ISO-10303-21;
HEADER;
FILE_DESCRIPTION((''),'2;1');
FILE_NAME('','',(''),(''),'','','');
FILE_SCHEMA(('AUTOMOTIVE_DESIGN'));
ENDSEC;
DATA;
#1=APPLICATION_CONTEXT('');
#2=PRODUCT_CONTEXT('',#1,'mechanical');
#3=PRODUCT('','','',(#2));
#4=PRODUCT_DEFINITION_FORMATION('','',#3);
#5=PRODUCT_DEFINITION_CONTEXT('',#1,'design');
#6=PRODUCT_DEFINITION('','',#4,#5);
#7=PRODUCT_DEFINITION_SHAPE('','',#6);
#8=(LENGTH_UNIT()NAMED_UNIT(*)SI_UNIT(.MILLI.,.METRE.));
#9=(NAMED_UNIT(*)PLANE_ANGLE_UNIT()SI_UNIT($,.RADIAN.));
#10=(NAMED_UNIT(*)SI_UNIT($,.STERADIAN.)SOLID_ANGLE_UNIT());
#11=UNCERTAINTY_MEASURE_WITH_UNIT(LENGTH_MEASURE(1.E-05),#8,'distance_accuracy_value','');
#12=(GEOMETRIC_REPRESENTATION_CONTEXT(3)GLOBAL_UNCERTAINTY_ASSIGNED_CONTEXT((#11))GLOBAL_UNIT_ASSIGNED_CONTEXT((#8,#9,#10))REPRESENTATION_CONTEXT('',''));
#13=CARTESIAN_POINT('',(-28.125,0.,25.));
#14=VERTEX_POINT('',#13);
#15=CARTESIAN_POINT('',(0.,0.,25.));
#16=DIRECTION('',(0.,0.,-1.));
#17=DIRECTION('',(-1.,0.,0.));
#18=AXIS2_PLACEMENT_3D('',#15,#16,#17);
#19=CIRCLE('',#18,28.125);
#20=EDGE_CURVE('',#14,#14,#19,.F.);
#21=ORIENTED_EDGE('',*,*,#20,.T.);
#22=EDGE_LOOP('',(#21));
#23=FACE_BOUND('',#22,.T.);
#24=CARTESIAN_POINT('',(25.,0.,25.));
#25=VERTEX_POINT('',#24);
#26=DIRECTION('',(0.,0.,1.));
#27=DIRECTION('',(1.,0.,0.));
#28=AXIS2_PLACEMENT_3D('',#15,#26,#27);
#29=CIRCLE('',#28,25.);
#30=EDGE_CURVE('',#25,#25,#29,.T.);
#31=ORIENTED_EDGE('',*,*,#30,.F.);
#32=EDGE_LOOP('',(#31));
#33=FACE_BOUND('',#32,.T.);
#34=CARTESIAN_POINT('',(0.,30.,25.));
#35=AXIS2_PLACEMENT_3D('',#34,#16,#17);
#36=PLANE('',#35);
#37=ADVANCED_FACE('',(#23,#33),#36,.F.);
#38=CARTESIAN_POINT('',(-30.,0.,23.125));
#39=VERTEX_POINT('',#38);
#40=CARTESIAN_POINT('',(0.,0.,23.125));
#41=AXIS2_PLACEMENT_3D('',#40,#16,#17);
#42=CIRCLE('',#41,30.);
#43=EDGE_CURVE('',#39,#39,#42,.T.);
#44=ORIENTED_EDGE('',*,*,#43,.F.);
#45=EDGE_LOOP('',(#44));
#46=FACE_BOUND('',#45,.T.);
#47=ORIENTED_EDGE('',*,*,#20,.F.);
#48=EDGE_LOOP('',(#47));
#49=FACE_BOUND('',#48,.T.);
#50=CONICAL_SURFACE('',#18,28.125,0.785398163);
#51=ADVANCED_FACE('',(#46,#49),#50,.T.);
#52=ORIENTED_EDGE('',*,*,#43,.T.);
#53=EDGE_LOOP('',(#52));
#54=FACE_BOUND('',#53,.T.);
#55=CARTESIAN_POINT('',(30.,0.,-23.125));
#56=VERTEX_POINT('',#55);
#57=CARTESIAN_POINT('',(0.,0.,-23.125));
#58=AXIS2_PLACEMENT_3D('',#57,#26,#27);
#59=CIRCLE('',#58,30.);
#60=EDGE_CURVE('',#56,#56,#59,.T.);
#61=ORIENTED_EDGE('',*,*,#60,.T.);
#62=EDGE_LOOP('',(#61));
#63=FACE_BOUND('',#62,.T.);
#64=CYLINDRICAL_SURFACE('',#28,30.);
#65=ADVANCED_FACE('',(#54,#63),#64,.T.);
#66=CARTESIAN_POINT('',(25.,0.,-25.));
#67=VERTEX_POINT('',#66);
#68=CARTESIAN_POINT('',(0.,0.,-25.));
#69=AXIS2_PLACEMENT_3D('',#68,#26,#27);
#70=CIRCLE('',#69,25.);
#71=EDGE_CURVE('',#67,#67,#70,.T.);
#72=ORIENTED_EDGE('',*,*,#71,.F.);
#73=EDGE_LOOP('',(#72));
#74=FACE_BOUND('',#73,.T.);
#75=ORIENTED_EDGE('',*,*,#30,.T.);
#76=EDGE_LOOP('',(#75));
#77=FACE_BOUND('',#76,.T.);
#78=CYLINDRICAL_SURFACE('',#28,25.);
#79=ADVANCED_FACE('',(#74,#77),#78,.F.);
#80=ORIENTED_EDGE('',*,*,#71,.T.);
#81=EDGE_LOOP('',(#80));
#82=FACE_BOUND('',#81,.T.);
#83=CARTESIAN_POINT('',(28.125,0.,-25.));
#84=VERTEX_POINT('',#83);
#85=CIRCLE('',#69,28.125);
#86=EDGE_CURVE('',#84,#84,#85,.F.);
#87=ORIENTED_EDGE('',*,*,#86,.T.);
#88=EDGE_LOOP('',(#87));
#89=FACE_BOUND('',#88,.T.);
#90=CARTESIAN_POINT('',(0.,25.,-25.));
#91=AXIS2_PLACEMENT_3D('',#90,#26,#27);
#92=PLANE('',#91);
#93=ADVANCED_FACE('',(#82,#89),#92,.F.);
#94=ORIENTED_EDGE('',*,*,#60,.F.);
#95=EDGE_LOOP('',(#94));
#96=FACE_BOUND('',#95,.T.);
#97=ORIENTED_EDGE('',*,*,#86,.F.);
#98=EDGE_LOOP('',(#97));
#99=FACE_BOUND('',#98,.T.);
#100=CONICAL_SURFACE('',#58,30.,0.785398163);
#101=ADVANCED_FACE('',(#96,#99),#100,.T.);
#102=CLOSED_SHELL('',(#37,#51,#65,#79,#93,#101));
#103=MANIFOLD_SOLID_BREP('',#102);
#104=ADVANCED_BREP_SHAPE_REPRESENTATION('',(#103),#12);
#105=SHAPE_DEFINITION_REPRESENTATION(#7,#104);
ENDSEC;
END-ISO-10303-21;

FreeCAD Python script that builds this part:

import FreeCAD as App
import Part
import Sketcher

V = App.Vector
Q = App.Units.Quantity


def edges_at(feature, points):
    """Names of the edges that pass closest to the given points."""
    edges = feature.Shape.Edges
    near = lambda p: min(range(len(edges)), key=lambda i: edges[i].distToShape(Part.Vertex(*p))[0])
    return sorted({f"Edge{near(p) + 1}" for p in points})


def add_polygon(sketch, points):
    """Adds a closed chain of lines whose ends are joined by coincident constraints."""
    first, n = sketch.GeometryCount, len(points)
    for a, b in zip(points, points[1:] + points[:1]):
        sketch.addGeometry(Part.LineSegment(App.Vector(*a, 0), App.Vector(*b, 0)), False)
    for i in range(n):
        sketch.addConstraint(Sketcher.Constraint("Coincident", first + i, 2, first + (i + 1) % n, 1))

doc = App.newDocument("Part")
body = doc.addObject("PartDesign::Body", "Body")

# Sketch on YZ plane
sketch1 = body.newObject("Sketcher::SketchObject", "Sketch")
sketch1.AttachmentSupport = (doc.getObject("YZ_Plane"), [""])
sketch1.MapMode = "FlatFace"
add_polygon(sketch1, [(30, 25), (25, 25), (25, -25), (30, -25)])  # lines 0-3
sketch1.addConstraint([
    Sketcher.Constraint("Horizontal", 0),
    Sketcher.Constraint("Vertical", 1),
    Sketcher.Constraint("Horizontal", 2),
    Sketcher.Constraint("Vertical", 3),
    Sketcher.Constraint("DistanceX", 0, 2, 0, 1, Q("5 mm")),
    Sketcher.Constraint("DistanceY", 1, 2, 1, 1, Q("50 mm")),
    Sketcher.Constraint("DistanceX", -1, 1, 0, 2, Q("25 mm")),
    Sketcher.Constraint("DistanceY", -1, 1, 0, 2, Q("25 mm")),
])
revolution = body.newObject("PartDesign::Revolution", "Revolution")
revolution.Profile = sketch1
revolution.ReferenceAxis = (sketch1, ["V_Axis"])
revolution.Angle = 360
doc.recompute()

chamfer = body.newObject("PartDesign::Chamfer", "Chamfer")
chamfer.Base = (revolution, edges_at(revolution, [(0, -30, 25), (0, -30, -25)]))
chamfer.Size = 1.875

doc.recompute()
